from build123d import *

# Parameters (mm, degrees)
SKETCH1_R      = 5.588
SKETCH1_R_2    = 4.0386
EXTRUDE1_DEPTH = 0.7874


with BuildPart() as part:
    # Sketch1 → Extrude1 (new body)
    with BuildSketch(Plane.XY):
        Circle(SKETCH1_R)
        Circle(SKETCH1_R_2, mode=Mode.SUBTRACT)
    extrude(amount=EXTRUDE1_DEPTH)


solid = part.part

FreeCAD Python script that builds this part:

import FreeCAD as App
import Part
import Sketcher

V = App.Vector
Q = App.Units.Quantity

doc = App.newDocument("Part")
body = doc.addObject("PartDesign::Body", "Body")

# Sketch on XY plane
sketch1 = doc.addObject("Sketcher::SketchObject", "Sketch")
body.addObject(sketch1)
sketch1.AttachmentSupport = (doc.XY_Plane, [""])
sketch1.MapMode = "FlatFace"
sketch1.addGeometry(Part.Circle(V(0, 0, 0), V(0, 0, 1), 5.588), False)
sketch1.addGeometry(Part.Circle(V(0, 0, 0), V(0, 0, 1), 4.0386), False)
sketch1.addConstraint(Sketcher.Constraint("Coincident", 0, 3, -1, 1))
sketch1.addConstraint(Sketcher.Constraint("Coincident", 1, 3, -1, 1))
sketch1.addConstraint(Sketcher.Constraint("Diameter", 0, Q("0.44 in")))
sketch1.addConstraint(Sketcher.Constraint("Diameter", 1, Q("0.318 in")))
pad1 = doc.addObject("PartDesign::Pad", "Pad")
body.addObject(pad1)
pad1.Profile = sketch1
pad1.Length = Q("0.031 in")

doc.recompute()
